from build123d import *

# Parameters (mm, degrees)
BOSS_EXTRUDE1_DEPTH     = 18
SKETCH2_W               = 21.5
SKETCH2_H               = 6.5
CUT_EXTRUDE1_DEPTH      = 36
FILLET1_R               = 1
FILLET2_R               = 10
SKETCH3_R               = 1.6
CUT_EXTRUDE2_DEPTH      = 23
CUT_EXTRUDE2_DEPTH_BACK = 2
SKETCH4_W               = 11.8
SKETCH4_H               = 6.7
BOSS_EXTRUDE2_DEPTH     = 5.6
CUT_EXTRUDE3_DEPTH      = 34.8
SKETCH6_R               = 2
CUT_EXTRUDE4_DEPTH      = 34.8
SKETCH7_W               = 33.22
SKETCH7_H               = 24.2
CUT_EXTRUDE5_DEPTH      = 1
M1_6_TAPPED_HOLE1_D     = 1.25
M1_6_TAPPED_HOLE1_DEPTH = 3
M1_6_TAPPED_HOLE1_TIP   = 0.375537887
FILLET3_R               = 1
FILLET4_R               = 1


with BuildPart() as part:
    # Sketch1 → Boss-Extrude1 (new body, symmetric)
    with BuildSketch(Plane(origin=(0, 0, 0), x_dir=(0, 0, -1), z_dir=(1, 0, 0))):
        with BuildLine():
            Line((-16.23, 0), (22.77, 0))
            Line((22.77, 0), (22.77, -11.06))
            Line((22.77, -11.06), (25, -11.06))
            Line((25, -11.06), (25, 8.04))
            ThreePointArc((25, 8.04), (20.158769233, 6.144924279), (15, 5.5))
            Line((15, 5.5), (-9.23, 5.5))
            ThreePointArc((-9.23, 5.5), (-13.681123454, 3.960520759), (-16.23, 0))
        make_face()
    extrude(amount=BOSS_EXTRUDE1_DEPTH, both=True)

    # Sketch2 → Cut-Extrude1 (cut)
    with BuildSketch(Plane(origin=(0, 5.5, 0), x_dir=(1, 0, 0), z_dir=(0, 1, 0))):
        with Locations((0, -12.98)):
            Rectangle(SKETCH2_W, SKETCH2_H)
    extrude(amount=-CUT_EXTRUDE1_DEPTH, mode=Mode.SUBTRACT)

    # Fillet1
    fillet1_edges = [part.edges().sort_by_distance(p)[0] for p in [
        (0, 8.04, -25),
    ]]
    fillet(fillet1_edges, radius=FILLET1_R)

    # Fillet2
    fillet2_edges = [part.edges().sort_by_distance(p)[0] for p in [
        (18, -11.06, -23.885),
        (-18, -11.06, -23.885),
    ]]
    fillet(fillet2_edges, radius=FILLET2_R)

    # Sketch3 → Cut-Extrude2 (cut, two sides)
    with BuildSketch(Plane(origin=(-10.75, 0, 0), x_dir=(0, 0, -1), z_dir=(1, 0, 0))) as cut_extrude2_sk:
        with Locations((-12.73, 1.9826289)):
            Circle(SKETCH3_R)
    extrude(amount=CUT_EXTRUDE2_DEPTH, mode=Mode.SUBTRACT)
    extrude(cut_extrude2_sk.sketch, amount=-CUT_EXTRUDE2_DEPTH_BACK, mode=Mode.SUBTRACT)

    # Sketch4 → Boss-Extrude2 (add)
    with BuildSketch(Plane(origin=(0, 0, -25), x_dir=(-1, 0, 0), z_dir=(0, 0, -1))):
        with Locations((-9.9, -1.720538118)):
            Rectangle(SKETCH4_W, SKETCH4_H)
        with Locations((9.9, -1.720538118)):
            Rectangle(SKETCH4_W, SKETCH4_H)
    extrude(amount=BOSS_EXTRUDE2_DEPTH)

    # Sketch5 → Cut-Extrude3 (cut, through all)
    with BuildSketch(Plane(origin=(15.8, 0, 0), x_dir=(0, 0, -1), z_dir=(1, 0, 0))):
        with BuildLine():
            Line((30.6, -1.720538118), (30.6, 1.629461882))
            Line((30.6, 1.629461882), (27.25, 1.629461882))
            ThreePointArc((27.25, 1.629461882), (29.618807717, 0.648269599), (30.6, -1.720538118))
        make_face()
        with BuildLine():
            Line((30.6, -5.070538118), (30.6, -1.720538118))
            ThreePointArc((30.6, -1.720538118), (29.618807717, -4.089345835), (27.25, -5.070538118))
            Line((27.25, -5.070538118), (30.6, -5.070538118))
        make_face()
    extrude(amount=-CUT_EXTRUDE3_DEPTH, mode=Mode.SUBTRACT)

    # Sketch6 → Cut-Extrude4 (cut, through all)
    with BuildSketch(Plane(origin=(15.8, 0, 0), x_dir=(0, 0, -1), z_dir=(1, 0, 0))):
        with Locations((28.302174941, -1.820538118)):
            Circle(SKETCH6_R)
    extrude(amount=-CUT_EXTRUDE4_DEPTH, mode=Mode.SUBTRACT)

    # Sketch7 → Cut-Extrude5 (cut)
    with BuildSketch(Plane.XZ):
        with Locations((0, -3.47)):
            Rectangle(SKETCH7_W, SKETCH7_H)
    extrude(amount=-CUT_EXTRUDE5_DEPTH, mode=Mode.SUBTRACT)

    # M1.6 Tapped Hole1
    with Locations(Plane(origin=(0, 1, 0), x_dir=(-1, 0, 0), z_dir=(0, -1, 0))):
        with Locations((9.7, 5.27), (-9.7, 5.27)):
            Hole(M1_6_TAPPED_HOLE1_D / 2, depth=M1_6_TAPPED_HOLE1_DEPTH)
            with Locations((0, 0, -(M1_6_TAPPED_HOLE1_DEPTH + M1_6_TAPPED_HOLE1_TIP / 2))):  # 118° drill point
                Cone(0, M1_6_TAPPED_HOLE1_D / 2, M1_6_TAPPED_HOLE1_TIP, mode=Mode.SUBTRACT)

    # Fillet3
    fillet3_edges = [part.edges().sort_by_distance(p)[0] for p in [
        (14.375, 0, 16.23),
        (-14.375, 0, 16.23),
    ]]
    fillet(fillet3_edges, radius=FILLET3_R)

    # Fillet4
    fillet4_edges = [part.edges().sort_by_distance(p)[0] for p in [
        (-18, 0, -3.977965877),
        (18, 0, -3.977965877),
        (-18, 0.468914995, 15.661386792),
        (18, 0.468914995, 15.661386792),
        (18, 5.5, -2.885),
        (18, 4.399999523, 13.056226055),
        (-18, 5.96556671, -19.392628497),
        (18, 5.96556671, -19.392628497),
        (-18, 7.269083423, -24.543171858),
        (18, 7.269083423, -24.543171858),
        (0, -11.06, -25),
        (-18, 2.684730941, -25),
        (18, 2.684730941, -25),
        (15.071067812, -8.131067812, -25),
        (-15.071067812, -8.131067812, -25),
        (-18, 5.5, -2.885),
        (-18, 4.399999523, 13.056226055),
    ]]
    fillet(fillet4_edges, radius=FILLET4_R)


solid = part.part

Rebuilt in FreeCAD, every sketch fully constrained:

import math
import FreeCAD as App
import Part
import Sketcher


def edges_at(feature, points):
    """Names of the edges that pass closest to the given points."""
    edges = feature.Shape.Edges
    near = lambda p: min(range(len(edges)), key=lambda i: edges[i].distToShape(Part.Vertex(*p))[0])
    return sorted({f"Edge{near(p) + 1}" for p in points})


def add_polygon(sketch, points):
    """Adds a closed chain of lines whose ends are joined by coincident constraints."""
    first, n = sketch.GeometryCount, len(points)
    for a, b in zip(points, points[1:] + points[:1]):
        sketch.addGeometry(Part.LineSegment(App.Vector(*a, 0), App.Vector(*b, 0)), False)
    for i in range(n):
        sketch.addConstraint(Sketcher.Constraint("Coincident", first + i, 2, first + (i + 1) % n, 1))

doc = App.newDocument("Part")
params = doc.addObject("Spreadsheet::Sheet", "Params")
for row, (alias, value) in enumerate([
    ("sketch1_height", "39 mm"),
    ("sketch1_width", "19.1 mm"),
    ("sketch1_width2", "11.06 mm"),
    ("sketch1_height2", "2.23 mm"),
    ("pad1_length", "36 mm"),
    ("sketch2_width", "21.5 mm"),
    ("sketch2_height", "6.5 mm"),
    ("pocket1_length", "36 mm"),
    ("fillet_radius", "1 mm"),
    ("fillet2_radius", "10 mm"),
    ("sketch3_diameter", "3.2 mm"),
    ("pocket2_length", "23 mm"),
    ("pocket2_length2", "2 mm"),
    ("sketch4_width", "11.8 mm"),
    ("sketch4_height", "6.7 mm"),
    ("pad2_length", "5.6 mm"),
    ("sketch5_radius", "3.35 mm"),
    ("sketch6_diameter", "4 mm"),
    ("sketch7_height", "24.2 mm"),
    ("sketch7_width", "33.22 mm"),
    ("pocket5_length", "1 mm"),
    ("sketch8_diameter", "1.25 mm"),
    ("hole_diameter", "1.25 mm"),
    ("hole_depth", "3 mm"),
    ("fillet3_radius", "1 mm"),
    ("fillet4_radius", "1 mm"),
], start=1):
    params.set(f"A{row}", alias)
    params.set(f"B{row}", "=" + value)
    params.setAlias(f"B{row}", alias)

body = doc.addObject("PartDesign::Body", "Body")

# Sketch on YZ plane
sketch1 = body.newObject("Sketcher::SketchObject", "Sketch")
sketch1.AttachmentSupport = (doc.getObject("YZ_Plane"), [""])
sketch1.MapMode = "FlatFace"
sketch1.addGeometry(Part.LineSegment(App.Vector(0, 16.23, 0), App.Vector(0, -22.77, 0)), False)
sketch1.addGeometry(Part.LineSegment(App.Vector(0, -22.77, 0), App.Vector(-11.06, -22.77, 0)), False)
sketch1.addGeometry(Part.LineSegment(App.Vector(-11.06, -22.77, 0), App.Vector(-11.06, -25, 0)), False)
sketch1.addGeometry(Part.LineSegment(App.Vector(-11.06, -25, 0), App.Vector(8.04, -25, 0)), False)
sketch1.addGeometry(Part.ArcOfCircle(Part.Circle(App.Vector(26.455039, -15, 0), App.Vector(0, 0, 1), 20.955039), math.radians(180), math.radians(208.503483)), False)
sketch1.addGeometry(Part.LineSegment(App.Vector(5.5, -15, 0), App.Vector(5.5, 9.23, 0)), False)
sketch1.addGeometry(Part.ArcOfCircle(Part.Circle(App.Vector(-1.704545, 9.23, 0), App.Vector(0, 0, 1), 7.204545), math.radians(0), math.radians(76.314453)), False)
sketch1.addConstraint(Sketcher.Constraint("Coincident", 0, 2, 1, 1))
sketch1.addConstraint(Sketcher.Constraint("Coincident", 1, 2, 2, 1))
sketch1.addConstraint(Sketcher.Constraint("Coincident", 2, 2, 3, 1))
sketch1.addConstraint(Sketcher.Constraint("Coincident", 3, 2, 4, 2))
sketch1.addConstraint(Sketcher.Constraint("Tangent", 4, 1, 5, 1))
sketch1.addConstraint(Sketcher.Constraint("Tangent", 5, 2, 6, 1))
sketch1.addConstraint(Sketcher.Constraint("Coincident", 6, 2, 0, 1))
sketch1.addConstraint(Sketcher.Constraint("Vertical", 0))
sketch1.addConstraint(Sketcher.Constraint("Horizontal", 1))
sketch1.addConstraint(Sketcher.Constraint("Vertical", 2))
sketch1.addConstraint(Sketcher.Constraint("Horizontal", 3))
sketch1.addConstraint(Sketcher.Constraint("Vertical", 5))
sketch1.addConstraint(Sketcher.Constraint("PointOnObject", 0, 2, -2))
sketch1.addConstraint(Sketcher.Constraint("DistanceY", 0, 2, 0, 1, 39.0))
sketch1.addConstraint(Sketcher.Constraint("DistanceX", 3, 1, 3, 2, 19.1))
sketch1.addConstraint(Sketcher.Constraint("DistanceY", 4, 3, -1, 1, 15.0))
sketch1.addConstraint(Sketcher.Constraint("DistanceY", 2, 2, -1, 1, 25.0))
sketch1.addConstraint(Sketcher.Constraint("DistanceY", 0, 2, 6, 3, 32.0))
sketch1.addConstraint(Sketcher.Constraint("DistanceX", 1, 2, 1, 1, 11.06))
sketch1.addConstraint(Sketcher.Constraint("DistanceY", 2, 2, 2, 1, 2.23))
sketch1.addConstraint(Sketcher.Constraint("DistanceX", -1, 1, 4, 1, 5.5))
sketch1.setExpression("Constraints[13]", "Params.sketch1_height")
sketch1.setExpression("Constraints[14]", "Params.sketch1_width")
sketch1.setExpression("Constraints[18]", "Params.sketch1_width2")
sketch1.setExpression("Constraints[19]", "Params.sketch1_height2")
pad1 = body.newObject("PartDesign::Pad", "Pad")
pad1.Profile = sketch1
pad1.setExpression("Length", "Params.pad1_length")
pad1.Midplane = True

# Sketch on XZ plane
sketch2 = body.newObject("Sketcher::SketchObject", "Sketch001")
sketch2.AttachmentSupport = (doc.getObject("XZ_Plane"), [""])
sketch2.MapMode = "FlatFace"
sketch2.AttachmentOffset = App.Placement(App.Vector(0, 0, -5.5), App.Rotation())
add_polygon(sketch2, [(-10.75, 9.73), (-10.75, 16.23), (10.75, 16.23), (10.75, 9.73)])  # lines 0-3
sketch2.addConstraint(Sketcher.Constraint("Vertical", 0))
sketch2.addConstraint(Sketcher.Constraint("Horizontal", 1))
sketch2.addConstraint(Sketcher.Constraint("Vertical", 2))
sketch2.addConstraint(Sketcher.Constraint("Horizontal", 3))
sketch2.addConstraint(Sketcher.Constraint("DistanceX", 1, 1, 1, 2, 21.5))
sketch2.addConstraint(Sketcher.Constraint("DistanceY", 0, 1, 0, 2, 6.5))
sketch2.addConstraint(Sketcher.Constraint("DistanceX", 0, 2, -1, 1, 10.75))
sketch2.addConstraint(Sketcher.Constraint("DistanceY", -1, 1, 0, 2, 16.23))
sketch2.setExpression("Constraints[8]", "Params.sketch2_width")
sketch2.setExpression("Constraints[9]", "Params.sketch2_height")
pocket1 = body.newObject("PartDesign::Pocket", "Pocket")
pocket1.Profile = sketch2
pocket1.setExpression("Length", "Params.pocket1_length")
pocket1.Reversed = True
doc.recompute()

fillet = body.newObject("PartDesign::Fillet", "Fillet")
fillet.Base = (pocket1, edges_at(pocket1, [(0, 8.04, -25)]))
fillet.setExpression("Radius", "Params.fillet_radius")
doc.recompute()

fillet2 = body.newObject("PartDesign::Fillet", "Fillet001")
fillet2.Base = (fillet, edges_at(fillet, [(18, -11.06, -23.885), (-18, -11.06, -23.885)]))
fillet2.setExpression("Radius", "Params.fillet2_radius")

# Sketch on YZ plane
sketch3 = body.newObject("Sketcher::SketchObject", "Sketch002")
sketch3.AttachmentSupport = (doc.getObject("YZ_Plane"), [""])
sketch3.MapMode = "FlatFace"
sketch3.AttachmentOffset = App.Placement(App.Vector(0, 0, -10.75), App.Rotation())
sketch3.addGeometry(Part.Circle(App.Vector(1.982629, 12.73, 0), App.Vector(0, 0, 1), 1.6), False)
sketch3.addConstraint(Sketcher.Constraint("Diameter", 0, 3.2))
sketch3.addConstraint(Sketcher.Constraint("DistanceY", -1, 1, 0, 3, 12.73))
sketch3.addConstraint(Sketcher.Constraint("DistanceX", -1, 1, 0, 3, 1.982629))
sketch3.setExpression("Constraints[0]", "Params.sketch3_diameter")
pocket2 = body.newObject("PartDesign::Pocket", "Pocket001")
pocket2.Profile = sketch3
pocket2.Type = "TwoLengths"
pocket2.setExpression("Length", "Params.pocket2_length")
pocket2.setExpression("Length2", "Params.pocket2_length2")
pocket2.Reversed = True

# Sketch on XY plane
sketch4 = body.newObject("Sketcher::SketchObject", "Sketch003")
sketch4.AttachmentSupport = (doc.getObject("XY_Plane"), [""])
sketch4.MapMode = "FlatFace"
sketch4.AttachmentOffset = App.Placement(App.Vector(0, 0, -25), App.Rotation())
add_polygon(sketch4, [(15.8, 1.629462), (15.8, -5.070538), (4, -5.070538), (4, 1.629462)])  # lines 0-3
add_polygon(sketch4, [(-4, 1.629462), (-4, -5.070538), (-15.8, -5.070538), (-15.8, 1.629462)])  # lines 4-7
sketch4.addConstraint(Sketcher.Constraint("Vertical", 0))
sketch4.addConstraint(Sketcher.Constraint("Horizontal", 1))
sketch4.addConstraint(Sketcher.Constraint("Vertical", 2))
sketch4.addConstraint(Sketcher.Constraint("Horizontal", 3))
sketch4.addConstraint(Sketcher.Constraint("Vertical", 4))
sketch4.addConstraint(Sketcher.Constraint("Horizontal", 5))
sketch4.addConstraint(Sketcher.Constraint("Vertical", 6))
sketch4.addConstraint(Sketcher.Constraint("Horizontal", 7))
sketch4.addConstraint(Sketcher.Constraint("Symmetric", 1, 2, 4, 2, -2))
sketch4.addConstraint(Sketcher.Constraint("Symmetric", 3, 2, 6, 2, -2))
sketch4.addConstraint(Sketcher.Constraint("DistanceX", 1, 2, 1, 1, 11.8))
sketch4.addConstraint(Sketcher.Constraint("DistanceY", 0, 2, 0, 1, 6.7))
sketch4.addConstraint(Sketcher.Constraint("DistanceX", -1, 1, 1, 2, 4.0))
sketch4.addConstraint(Sketcher.Constraint("DistanceY", 0, 2, -1, 1, 5.070538))
sketch4.setExpression("Constraints[18]", "Params.sketch4_width")
sketch4.setExpression("Constraints[19]", "Params.sketch4_height")
pad2 = body.newObject("PartDesign::Pad", "Pad001")
pad2.Profile = sketch4
pad2.setExpression("Length", "Params.pad2_length")
pad2.Reversed = True

# Sketch on YZ plane
sketch5 = body.newObject("Sketcher::SketchObject", "Sketch004")
sketch5.AttachmentSupport = (doc.getObject("YZ_Plane"), [""])
sketch5.MapMode = "FlatFace"
sketch5.AttachmentOffset = App.Placement(App.Vector(0, 0, 15.8), App.Rotation())
sketch5.addGeometry(Part.LineSegment(App.Vector(-1.720538, -30.6, 0), App.Vector(1.629462, -30.6, 0)), False)
sketch5.addGeometry(Part.LineSegment(App.Vector(1.629462, -30.6, 0), App.Vector(1.629462, -27.25, 0)), False)
sketch5.addGeometry(Part.ArcOfCircle(Part.Circle(App.Vector(-1.720538, -27.25, 0), App.Vector(0, 0, 1), 3.35), math.radians(-90), math.radians(0)), False)
sketch5.addGeometry(Part.LineSegment(App.Vector(-5.070538, -30.6, 0), App.Vector(-1.720538, -30.6, 0)), False)
sketch5.addGeometry(Part.ArcOfCircle(Part.Circle(App.Vector(-1.720538, -27.25, 0), App.Vector(0, 0, 1), 3.35), math.radians(180), math.radians(270)), False)
sketch5.addGeometry(Part.LineSegment(App.Vector(-5.070538, -27.25, 0), App.Vector(-5.070538, -30.6, 0)), False)
sketch5.addConstraint(Sketcher.Constraint("Coincident", 0, 2, 1, 1))
sketch5.addConstraint(Sketcher.Constraint("Tangent", 1, 2, 2, 2))
sketch5.addConstraint(Sketcher.Constraint("Tangent", 2, 1, 0, 1))
sketch5.addConstraint(Sketcher.Constraint("Tangent", 3, 2, 4, 2))
sketch5.addConstraint(Sketcher.Constraint("Tangent", 4, 1, 5, 1))
sketch5.addConstraint(Sketcher.Constraint("Coincident", 5, 2, 3, 1))
sketch5.addConstraint(Sketcher.Constraint("Horizontal", 0))
sketch5.addConstraint(Sketcher.Constraint("Vertical", 1))
sketch5.addConstraint(Sketcher.Constraint("Horizontal", 3))
sketch5.addConstraint(Sketcher.Constraint("Vertical", 5))
sketch5.addConstraint(Sketcher.Constraint("Coincident", 4, 3, 2, 3))
sketch5.addConstraint(Sketcher.Constraint("Equal", 2, 4))
sketch5.addConstraint(Sketcher.Constraint("Radius", 2, 3.35))
sketch5.addConstraint(Sketcher.Constraint("DistanceY", 0, 2, -1, 1, 30.6))
sketch5.addConstraint(Sketcher.Constraint("DistanceX", 2, 3, -1, 1, 1.720538))
sketch5.setExpression("Constraints[12]", "Params.sketch5_radius")
pocket3 = body.newObject("PartDesign::Pocket", "Pocket002")
pocket3.Profile = sketch5
pocket3.Type = "ThroughAll"

# Sketch on YZ plane
sketch6 = body.newObject("Sketcher::SketchObject", "Sketch005")
sketch6.AttachmentSupport = (doc.getObject("YZ_Plane"), [""])
sketch6.MapMode = "FlatFace"
sketch6.AttachmentOffset = App.Placement(App.Vector(0, 0, 15.8), App.Rotation())
sketch6.addGeometry(Part.Circle(App.Vector(-1.820538, -28.302175, 0), App.Vector(0, 0, 1), 2), False)
sketch6.addConstraint(Sketcher.Constraint("Diameter", 0, 4.0))
sketch6.addConstraint(Sketcher.Constraint("DistanceX", 0, 3, -1, 1, 1.820538))
sketch6.addConstraint(Sketcher.Constraint("DistanceY", 0, 3, -1, 1, 28.302175))
sketch6.setExpression("Constraints[0]", "Params.sketch6_diameter")
pocket4 = body.newObject("PartDesign::Pocket", "Pocket003")
pocket4.Profile = sketch6
pocket4.Type = "ThroughAll"

# Sketch on XZ plane
sketch7 = body.newObject("Sketcher::SketchObject", "Sketch006")
sketch7.AttachmentSupport = (doc.getObject("XZ_Plane"), [""])
sketch7.MapMode = "FlatFace"
add_polygon(sketch7, [(-16.61, 8.63), (-16.61, -15.57), (16.61, -15.57), (16.61, 8.63)])  # lines 0-3
sketch7.addConstraint(Sketcher.Constraint("Vertical", 0))
sketch7.addConstraint(Sketcher.Constraint("Horizontal", 1))
sketch7.addConstraint(Sketcher.Constraint("Vertical", 2))
sketch7.addConstraint(Sketcher.Constraint("Horizontal", 3))
sketch7.addConstraint(Sketcher.Constraint("DistanceY", 0, 2, 0, 1, 24.2))
sketch7.addConstraint(Sketcher.Constraint("DistanceX", 1, 1, 1, 2, 33.22))
sketch7.addConstraint(Sketcher.Constraint("DistanceX", 0, 2, -1, 1, 16.61))
sketch7.addConstraint(Sketcher.Constraint("DistanceY", 0, 2, -1, 1, 15.57))
sketch7.setExpression("Constraints[8]", "Params.sketch7_height")
sketch7.setExpression("Constraints[9]", "Params.sketch7_width")
pocket5 = body.newObject("PartDesign::Pocket", "Pocket004")
pocket5.Profile = sketch7
pocket5.setExpression("Length", "Params.pocket5_length")

# Sketch on XZ plane
sketch8 = body.newObject("Sketcher::SketchObject", "Sketch007")
sketch8.AttachmentSupport = (doc.getObject("XZ_Plane"), [""])
sketch8.MapMode = "FlatFace"
sketch8.AttachmentOffset = App.Placement(App.Vector(0, 0, -1), App.Rotation())
sketch8.addGeometry(Part.Circle(App.Vector(-9.7, -5.27, 0), App.Vector(0, 0, 1), 0.625), False)
sketch8.addGeometry(Part.Circle(App.Vector(9.7, -5.27, 0), App.Vector(0, 0, 1), 0.625), False)
sketch8.addConstraint(Sketcher.Constraint("Equal", 0, 1))
sketch8.addConstraint(Sketcher.Constraint("Symmetric", 0, 3, 1, 3, -2))
sketch8.addConstraint(Sketcher.Constraint("Diameter", 0, 1.25))
sketch8.addConstraint(Sketcher.Constraint("DistanceX", 0, 3, -1, 1, 9.7))
sketch8.addConstraint(Sketcher.Constraint("DistanceY", 0, 3, -1, 1, 5.27))
sketch8.setExpression("Constraints[2]", "Params.sketch8_diameter")
doc.recompute()
hole = body.newObject("PartDesign::Hole", "Hole")
hole.Profile = sketch8
hole.ThreadType = "None"
hole.setExpression("Diameter", "Params.hole_diameter")
hole.DepthType = "Dimension"
hole.setExpression("Depth", "Params.hole_depth")
hole.DrillPoint = "Angled"
hole.DrillPointAngle = 118
doc.recompute()

fillet3 = body.newObject("PartDesign::Fillet", "Fillet002")
fillet3.Base = (hole, edges_at(hole, [(14.375, 0, 16.23), (-14.375, 0, 16.23)]))
fillet3.setExpression("Radius", "Params.fillet3_radius")
doc.recompute()

fillet4 = body.newObject("PartDesign::Fillet", "Fillet003")
fillet4.Base = (fillet3, edges_at(fillet3, [
    (-18, 0, -3.978),
    (18, 0, -3.978),
    (-18, 0.469, 15.661),
    (18, 0.469, 15.661),
    (18, 5.5, -2.885),
    (18, 4.4, 13.056),
    (-18, 5.966, -19.393),
    (18, 5.966, -19.393),
    (-18, 7.269, -24.543),
    (18, 7.269, -24.543),
    (0, -11.06, -25),
    (-18, 2.685, -25),
    (18, 2.685, -25),
    (15.071, -8.131, -25),
    (-15.071, -8.131, -25),
    (-18, 5.5, -2.885),
    (-18, 4.4, 13.056),
]))
fillet4.setExpression("Radius", "Params.fillet4_radius")

doc.recompute()
